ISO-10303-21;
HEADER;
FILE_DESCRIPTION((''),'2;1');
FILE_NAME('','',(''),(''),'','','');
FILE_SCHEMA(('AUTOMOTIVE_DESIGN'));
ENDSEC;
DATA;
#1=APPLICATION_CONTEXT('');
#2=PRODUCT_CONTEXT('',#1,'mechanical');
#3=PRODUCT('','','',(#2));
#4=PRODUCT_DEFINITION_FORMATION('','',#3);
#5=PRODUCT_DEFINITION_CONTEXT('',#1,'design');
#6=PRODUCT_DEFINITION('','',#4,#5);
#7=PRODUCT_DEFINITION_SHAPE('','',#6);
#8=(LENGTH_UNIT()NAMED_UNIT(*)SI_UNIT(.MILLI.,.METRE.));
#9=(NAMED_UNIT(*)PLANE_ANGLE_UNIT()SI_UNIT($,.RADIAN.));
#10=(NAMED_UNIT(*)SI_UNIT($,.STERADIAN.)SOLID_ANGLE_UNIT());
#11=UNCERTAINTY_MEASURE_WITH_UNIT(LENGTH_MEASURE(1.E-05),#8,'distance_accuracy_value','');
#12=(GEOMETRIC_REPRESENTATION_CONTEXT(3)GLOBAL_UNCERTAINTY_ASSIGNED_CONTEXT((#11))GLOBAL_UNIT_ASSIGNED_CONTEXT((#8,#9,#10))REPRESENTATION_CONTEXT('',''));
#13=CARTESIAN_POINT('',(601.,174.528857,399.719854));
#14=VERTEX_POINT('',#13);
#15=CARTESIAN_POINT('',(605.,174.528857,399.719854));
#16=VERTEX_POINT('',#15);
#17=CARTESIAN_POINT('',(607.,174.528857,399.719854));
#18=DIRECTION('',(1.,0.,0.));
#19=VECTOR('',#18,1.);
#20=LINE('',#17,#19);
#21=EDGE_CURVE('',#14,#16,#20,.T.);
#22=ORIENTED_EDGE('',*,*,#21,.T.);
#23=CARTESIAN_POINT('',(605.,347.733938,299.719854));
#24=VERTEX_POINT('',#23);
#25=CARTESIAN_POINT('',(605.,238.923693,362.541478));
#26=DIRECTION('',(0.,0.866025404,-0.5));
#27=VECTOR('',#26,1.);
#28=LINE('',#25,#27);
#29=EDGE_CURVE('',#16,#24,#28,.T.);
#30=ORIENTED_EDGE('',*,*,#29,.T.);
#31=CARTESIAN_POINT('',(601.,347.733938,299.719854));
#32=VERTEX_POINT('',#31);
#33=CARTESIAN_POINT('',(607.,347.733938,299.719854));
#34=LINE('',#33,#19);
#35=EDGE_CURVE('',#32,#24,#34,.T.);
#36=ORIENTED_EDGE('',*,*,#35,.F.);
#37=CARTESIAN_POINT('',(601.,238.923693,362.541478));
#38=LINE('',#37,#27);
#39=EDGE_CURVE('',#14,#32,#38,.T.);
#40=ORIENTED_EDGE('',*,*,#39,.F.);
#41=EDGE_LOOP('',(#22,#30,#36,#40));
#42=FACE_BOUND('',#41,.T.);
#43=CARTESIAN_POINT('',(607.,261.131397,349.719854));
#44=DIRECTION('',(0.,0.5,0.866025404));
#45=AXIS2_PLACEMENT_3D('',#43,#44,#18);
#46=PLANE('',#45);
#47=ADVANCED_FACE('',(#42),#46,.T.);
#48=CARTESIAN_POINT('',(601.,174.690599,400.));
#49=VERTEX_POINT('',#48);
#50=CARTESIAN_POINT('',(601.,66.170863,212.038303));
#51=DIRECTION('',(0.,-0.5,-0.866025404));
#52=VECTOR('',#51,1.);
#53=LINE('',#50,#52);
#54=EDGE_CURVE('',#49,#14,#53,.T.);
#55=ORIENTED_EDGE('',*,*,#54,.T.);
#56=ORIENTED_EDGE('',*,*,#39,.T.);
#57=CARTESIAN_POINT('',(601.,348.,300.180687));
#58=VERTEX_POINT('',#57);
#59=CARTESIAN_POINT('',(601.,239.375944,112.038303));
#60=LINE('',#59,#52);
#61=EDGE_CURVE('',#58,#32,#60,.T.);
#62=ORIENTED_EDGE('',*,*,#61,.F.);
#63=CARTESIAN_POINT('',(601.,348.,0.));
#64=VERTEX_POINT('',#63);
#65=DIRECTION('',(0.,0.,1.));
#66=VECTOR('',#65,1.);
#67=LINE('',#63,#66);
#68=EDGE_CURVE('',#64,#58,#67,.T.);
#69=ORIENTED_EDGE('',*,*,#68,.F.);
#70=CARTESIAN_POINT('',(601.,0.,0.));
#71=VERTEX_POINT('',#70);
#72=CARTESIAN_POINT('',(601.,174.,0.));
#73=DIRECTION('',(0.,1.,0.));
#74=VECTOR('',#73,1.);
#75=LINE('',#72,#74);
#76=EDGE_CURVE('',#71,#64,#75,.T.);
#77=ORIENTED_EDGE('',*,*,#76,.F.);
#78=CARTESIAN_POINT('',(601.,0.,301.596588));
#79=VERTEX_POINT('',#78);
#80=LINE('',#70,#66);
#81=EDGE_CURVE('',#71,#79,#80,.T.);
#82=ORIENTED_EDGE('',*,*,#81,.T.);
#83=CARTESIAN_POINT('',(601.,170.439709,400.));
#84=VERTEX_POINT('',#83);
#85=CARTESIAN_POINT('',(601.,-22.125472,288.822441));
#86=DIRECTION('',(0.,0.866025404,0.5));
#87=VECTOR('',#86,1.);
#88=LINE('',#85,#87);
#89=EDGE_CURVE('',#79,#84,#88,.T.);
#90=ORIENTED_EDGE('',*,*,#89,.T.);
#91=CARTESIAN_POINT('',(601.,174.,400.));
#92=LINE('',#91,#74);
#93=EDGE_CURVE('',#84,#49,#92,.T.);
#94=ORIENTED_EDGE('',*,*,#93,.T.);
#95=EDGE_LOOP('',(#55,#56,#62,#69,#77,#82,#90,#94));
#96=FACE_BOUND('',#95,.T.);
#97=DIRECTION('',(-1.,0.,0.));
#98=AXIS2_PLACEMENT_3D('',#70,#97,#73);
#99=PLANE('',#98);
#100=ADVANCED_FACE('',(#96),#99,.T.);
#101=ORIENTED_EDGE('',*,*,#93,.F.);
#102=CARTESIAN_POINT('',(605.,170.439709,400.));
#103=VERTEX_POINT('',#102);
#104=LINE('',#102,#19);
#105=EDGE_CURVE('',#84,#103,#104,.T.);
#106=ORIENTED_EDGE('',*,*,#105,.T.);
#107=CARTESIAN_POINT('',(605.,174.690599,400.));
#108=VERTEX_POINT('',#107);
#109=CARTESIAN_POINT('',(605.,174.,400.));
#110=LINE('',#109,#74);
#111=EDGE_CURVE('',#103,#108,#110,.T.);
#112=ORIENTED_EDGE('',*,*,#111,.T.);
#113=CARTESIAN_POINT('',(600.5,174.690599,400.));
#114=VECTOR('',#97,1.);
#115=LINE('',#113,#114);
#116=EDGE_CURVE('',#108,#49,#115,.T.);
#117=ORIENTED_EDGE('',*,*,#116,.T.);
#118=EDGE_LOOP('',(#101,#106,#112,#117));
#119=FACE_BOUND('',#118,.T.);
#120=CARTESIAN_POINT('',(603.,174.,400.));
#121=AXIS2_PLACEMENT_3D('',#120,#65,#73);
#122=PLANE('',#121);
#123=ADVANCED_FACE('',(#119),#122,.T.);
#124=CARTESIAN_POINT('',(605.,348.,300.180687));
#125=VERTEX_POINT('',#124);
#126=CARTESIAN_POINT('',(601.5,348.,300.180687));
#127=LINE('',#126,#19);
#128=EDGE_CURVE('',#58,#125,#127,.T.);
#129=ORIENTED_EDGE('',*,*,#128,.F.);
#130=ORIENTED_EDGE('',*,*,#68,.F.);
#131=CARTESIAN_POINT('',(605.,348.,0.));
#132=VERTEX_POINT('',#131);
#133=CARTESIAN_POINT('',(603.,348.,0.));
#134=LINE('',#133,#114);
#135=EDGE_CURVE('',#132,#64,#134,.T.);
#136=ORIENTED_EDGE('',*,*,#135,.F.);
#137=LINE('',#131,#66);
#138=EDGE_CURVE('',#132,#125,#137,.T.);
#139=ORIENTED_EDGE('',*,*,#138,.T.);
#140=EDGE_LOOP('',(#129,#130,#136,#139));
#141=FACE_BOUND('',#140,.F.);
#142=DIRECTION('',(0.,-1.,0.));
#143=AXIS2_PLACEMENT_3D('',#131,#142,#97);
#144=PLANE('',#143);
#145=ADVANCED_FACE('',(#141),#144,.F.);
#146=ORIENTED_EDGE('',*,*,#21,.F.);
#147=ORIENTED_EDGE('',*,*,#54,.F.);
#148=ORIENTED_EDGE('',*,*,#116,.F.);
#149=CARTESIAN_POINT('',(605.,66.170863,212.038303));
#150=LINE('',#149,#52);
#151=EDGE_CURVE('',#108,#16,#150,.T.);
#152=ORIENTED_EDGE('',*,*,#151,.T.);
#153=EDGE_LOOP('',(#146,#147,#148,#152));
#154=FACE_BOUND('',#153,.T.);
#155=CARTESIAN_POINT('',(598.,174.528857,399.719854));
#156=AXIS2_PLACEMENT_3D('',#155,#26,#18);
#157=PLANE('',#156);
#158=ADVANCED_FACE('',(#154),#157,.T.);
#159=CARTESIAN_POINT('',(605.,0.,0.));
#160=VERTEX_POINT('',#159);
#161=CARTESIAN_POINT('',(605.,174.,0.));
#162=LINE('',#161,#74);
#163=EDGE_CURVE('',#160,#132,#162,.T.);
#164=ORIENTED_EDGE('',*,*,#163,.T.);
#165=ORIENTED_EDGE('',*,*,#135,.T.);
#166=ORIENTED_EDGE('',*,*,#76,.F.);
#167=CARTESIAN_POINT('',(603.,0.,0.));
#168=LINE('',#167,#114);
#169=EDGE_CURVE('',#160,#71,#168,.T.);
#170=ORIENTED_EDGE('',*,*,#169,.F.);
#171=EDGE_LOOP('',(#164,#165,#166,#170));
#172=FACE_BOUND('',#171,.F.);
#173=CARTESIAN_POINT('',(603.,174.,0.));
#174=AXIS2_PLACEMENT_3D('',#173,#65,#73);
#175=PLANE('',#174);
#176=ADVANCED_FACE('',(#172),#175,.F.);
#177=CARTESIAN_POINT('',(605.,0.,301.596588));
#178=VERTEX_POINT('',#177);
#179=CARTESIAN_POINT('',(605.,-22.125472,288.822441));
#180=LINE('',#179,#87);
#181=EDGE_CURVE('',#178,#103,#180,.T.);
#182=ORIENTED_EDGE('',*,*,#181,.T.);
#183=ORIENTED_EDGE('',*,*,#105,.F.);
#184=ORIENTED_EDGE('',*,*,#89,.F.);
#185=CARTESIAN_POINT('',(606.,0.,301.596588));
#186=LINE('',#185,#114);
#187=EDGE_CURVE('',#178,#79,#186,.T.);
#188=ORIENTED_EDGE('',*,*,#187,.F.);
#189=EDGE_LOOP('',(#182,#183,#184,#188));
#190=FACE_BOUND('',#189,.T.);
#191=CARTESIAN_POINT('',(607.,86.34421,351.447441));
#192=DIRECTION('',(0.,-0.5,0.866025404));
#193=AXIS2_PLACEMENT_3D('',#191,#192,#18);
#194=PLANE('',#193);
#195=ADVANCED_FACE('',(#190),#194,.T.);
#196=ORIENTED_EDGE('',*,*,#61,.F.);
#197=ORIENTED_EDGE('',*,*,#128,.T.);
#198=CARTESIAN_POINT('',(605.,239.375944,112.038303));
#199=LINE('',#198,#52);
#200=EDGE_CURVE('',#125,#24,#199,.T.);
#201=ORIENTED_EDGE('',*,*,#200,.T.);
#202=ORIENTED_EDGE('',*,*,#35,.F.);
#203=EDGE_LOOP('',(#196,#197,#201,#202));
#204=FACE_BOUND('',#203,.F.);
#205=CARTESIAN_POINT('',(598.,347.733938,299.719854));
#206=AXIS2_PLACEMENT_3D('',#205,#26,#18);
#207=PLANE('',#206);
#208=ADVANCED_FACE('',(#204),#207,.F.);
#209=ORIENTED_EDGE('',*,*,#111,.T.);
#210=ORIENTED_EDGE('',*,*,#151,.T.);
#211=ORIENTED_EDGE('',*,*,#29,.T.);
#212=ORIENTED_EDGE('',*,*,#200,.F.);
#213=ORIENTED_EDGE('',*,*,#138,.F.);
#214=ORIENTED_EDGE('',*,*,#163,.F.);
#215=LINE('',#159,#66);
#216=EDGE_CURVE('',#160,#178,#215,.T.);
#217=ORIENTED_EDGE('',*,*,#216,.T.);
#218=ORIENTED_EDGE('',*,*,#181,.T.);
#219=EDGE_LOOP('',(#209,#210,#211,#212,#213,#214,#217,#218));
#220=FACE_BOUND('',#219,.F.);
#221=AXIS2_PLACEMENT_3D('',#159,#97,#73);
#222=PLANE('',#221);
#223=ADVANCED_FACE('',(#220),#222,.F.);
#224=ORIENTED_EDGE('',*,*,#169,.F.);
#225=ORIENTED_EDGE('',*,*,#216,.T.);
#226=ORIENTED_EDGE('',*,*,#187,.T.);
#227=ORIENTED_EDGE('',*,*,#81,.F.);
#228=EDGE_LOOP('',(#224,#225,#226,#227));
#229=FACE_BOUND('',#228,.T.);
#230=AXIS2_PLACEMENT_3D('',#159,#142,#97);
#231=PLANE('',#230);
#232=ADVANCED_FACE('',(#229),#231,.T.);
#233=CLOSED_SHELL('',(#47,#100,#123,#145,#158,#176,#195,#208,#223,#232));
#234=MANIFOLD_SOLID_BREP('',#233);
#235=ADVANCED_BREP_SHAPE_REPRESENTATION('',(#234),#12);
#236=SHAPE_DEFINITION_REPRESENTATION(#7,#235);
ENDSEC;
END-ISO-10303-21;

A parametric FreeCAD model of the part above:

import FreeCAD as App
import Part
import Sketcher

doc = App.newDocument("Part")
body = doc.addObject("PartDesign::Body", "Body")

# Sketch on XY plane
sketch1 = doc.addObject("Sketcher::SketchObject", "Sketch")
body.addObject(sketch1)
sketch1.AttachmentSupport = (doc.XY_Plane, [""])
sketch1.MapMode = "FlatFace"
sketch1.addGeometry(Part.LineSegment(App.Vector(0, 200, 0), App.Vector(0, 0, 0)), False)
sketch1.addGeometry(Part.LineSegment(App.Vector(0, 0, 0), App.Vector(18, 0, 0)), False)
sketch1.addGeometry(Part.LineSegment(App.Vector(18, 0, 0), App.Vector(18, 200, 0)), False)
sketch1.addGeometry(Part.LineSegment(App.Vector(18, 200, 0), App.Vector(0, 200, 0)), False)
sketch1.addConstraint(Sketcher.Constraint("Coincident", 0, 2, 1, 1))
sketch1.addConstraint(Sketcher.Constraint("Coincident", 1, 2, 2, 1))
sketch1.addConstraint(Sketcher.Constraint("Coincident", 2, 2, 3, 1))
sketch1.addConstraint(Sketcher.Constraint("Coincident", 3, 2, 0, 1))
sketch1.addConstraint(Sketcher.Constraint("Vertical", 0))
sketch1.addConstraint(Sketcher.Constraint("Horizontal", 1))
sketch1.addConstraint(Sketcher.Constraint("Vertical", 2))
sketch1.addConstraint(Sketcher.Constraint("Horizontal", 3))
sketch1.addConstraint(Sketcher.Constraint("Coincident", 0, 2, -1, 1))
sketch1.addConstraint(Sketcher.Constraint("DistanceX", 1, 1, 1, 2, 18.0))
sketch1.addConstraint(Sketcher.Constraint("DistanceY", 0, 2, 0, 1, 200.0))
pad1 = doc.addObject("PartDesign::Pad", "Pad")
body.addObject(pad1)
pad1.Profile = sketch1
pad1.Length = 87
body2 = doc.addObject("PartDesign::Body", "Body001")
doc.recompute()

body.Placement = App.Placement(App.Vector(598, 174.528857, 399.719854), App.Rotation(App.Vector(-1, 0, 0), 30))
boolean = doc.addObject("PartDesign::Boolean", "Boolean")
body2.addObject(boolean)
boolean.Type = "Fuse"
boolean.addObjects([body])
body3 = doc.addObject("PartDesign::Body", "Body002")

# Sketch on XY plane
sketch2 = doc.addObject("Sketcher::SketchObject", "Sketch001")
body3.addObject(sketch2)
sketch2.AttachmentSupport = (doc.getObject("XY_Plane002"), [""])
sketch2.MapMode = "FlatFace"
sketch2.addGeometry(Part.LineSegment(App.Vector(0, 200, 0), App.Vector(0, 0, 0)), False)
sketch2.addGeometry(Part.LineSegment(App.Vector(0, 0, 0), App.Vector(18, 0, 0)), False)
sketch2.addGeometry(Part.LineSegment(App.Vector(18, 0, 0), App.Vector(18, 200, 0)), False)
sketch2.addGeometry(Part.LineSegment(App.Vector(18, 200, 0), App.Vector(0, 200, 0)), False)
sketch2.addConstraint(Sketcher.Constraint("Coincident", 0, 2, 1, 1))
sketch2.addConstraint(Sketcher.Constraint("Coincident", 1, 2, 2, 1))
sketch2.addConstraint(Sketcher.Constraint("Coincident", 2, 2, 3, 1))
sketch2.addConstraint(Sketcher.Constraint("Coincident", 3, 2, 0, 1))
sketch2.addConstraint(Sketcher.Constraint("Vertical", 0))
sketch2.addConstraint(Sketcher.Constraint("Horizontal", 1))
sketch2.addConstraint(Sketcher.Constraint("Vertical", 2))
sketch2.addConstraint(Sketcher.Constraint("Horizontal", 3))
sketch2.addConstraint(Sketcher.Constraint("Coincident", 0, 2, -1, 1))
sketch2.addConstraint(Sketcher.Constraint("DistanceX", 1, 1, 1, 2, 18.0))
sketch2.addConstraint(Sketcher.Constraint("DistanceY", 0, 2, 0, 1, 200.0))
pad2 = doc.addObject("PartDesign::Pad", "Pad001")
body3.addObject(pad2)
pad2.Profile = sketch2
pad2.Length = 87
body4 = doc.addObject("PartDesign::Body", "Body003")
doc.recompute()

body3.Placement = App.Placement(App.Vector(598, -0.25833, 301.447441), App.Rotation(App.Vector(1, 0, 0), 30))
boolean2 = doc.addObject("PartDesign::Boolean", "Boolean001")
body4.addObject(boolean2)
boolean2.Type = "Fuse"
boolean2.addObjects([body3])
body5 = doc.addObject("PartDesign::Body", "Body004")

# Sketch on XY plane
sketch3 = doc.addObject("Sketcher::SketchObject", "Sketch002")
body5.addObject(sketch3)
sketch3.AttachmentSupport = (doc.getObject("XY_Plane004"), [""])
sketch3.MapMode = "FlatFace"
sketch3.addGeometry(Part.LineSegment(App.Vector(601, 0, 0), App.Vector(605, 0, 0)), False)
sketch3.addGeometry(Part.LineSegment(App.Vector(605, 0, 0), App.Vector(605, 348, 0)), False)
sketch3.addGeometry(Part.LineSegment(App.Vector(605, 348, 0), App.Vector(601, 348, 0)), False)
sketch3.addGeometry(Part.LineSegment(App.Vector(601, 348, 0), App.Vector(601, 0, 0)), False)
sketch3.addConstraint(Sketcher.Constraint("Coincident", 0, 2, 1, 1))
sketch3.addConstraint(Sketcher.Constraint("Coincident", 1, 2, 2, 1))
sketch3.addConstraint(Sketcher.Constraint("Coincident", 2, 2, 3, 1))
sketch3.addConstraint(Sketcher.Constraint("Coincident", 3, 2, 0, 1))
sketch3.addConstraint(Sketcher.Constraint("Horizontal", 0))
sketch3.addConstraint(Sketcher.Constraint("Vertical", 1))
sketch3.addConstraint(Sketcher.Constraint("Horizontal", 2))
sketch3.addConstraint(Sketcher.Constraint("Vertical", 3))
sketch3.addConstraint(Sketcher.Constraint("PointOnObject", 0, 2, -1))
sketch3.addConstraint(Sketcher.Constraint("DistanceX", 0, 1, 0, 2, 4.0))
sketch3.addConstraint(Sketcher.Constraint("DistanceY", 1, 1, 1, 2, 348.0))
sketch3.addConstraint(Sketcher.Constraint("DistanceX", -1, 1, 0, 2, 605.0))
pad3 = doc.addObject("PartDesign::Pad", "Pad002")
body5.addObject(pad3)
pad3.Profile = sketch3
pad3.Length = 400
doc.recompute()

boolean3 = doc.addObject("PartDesign::Boolean", "Boolean002")
body5.addObject(boolean3)
boolean3.Type = "Cut"
boolean3.addObjects([body4])
doc.recompute()

boolean4 = doc.addObject("PartDesign::Boolean", "Boolean003")
body5.addObject(boolean4)
boolean4.Type = "Cut"
boolean4.addObjects([body2])

doc.recompute()
